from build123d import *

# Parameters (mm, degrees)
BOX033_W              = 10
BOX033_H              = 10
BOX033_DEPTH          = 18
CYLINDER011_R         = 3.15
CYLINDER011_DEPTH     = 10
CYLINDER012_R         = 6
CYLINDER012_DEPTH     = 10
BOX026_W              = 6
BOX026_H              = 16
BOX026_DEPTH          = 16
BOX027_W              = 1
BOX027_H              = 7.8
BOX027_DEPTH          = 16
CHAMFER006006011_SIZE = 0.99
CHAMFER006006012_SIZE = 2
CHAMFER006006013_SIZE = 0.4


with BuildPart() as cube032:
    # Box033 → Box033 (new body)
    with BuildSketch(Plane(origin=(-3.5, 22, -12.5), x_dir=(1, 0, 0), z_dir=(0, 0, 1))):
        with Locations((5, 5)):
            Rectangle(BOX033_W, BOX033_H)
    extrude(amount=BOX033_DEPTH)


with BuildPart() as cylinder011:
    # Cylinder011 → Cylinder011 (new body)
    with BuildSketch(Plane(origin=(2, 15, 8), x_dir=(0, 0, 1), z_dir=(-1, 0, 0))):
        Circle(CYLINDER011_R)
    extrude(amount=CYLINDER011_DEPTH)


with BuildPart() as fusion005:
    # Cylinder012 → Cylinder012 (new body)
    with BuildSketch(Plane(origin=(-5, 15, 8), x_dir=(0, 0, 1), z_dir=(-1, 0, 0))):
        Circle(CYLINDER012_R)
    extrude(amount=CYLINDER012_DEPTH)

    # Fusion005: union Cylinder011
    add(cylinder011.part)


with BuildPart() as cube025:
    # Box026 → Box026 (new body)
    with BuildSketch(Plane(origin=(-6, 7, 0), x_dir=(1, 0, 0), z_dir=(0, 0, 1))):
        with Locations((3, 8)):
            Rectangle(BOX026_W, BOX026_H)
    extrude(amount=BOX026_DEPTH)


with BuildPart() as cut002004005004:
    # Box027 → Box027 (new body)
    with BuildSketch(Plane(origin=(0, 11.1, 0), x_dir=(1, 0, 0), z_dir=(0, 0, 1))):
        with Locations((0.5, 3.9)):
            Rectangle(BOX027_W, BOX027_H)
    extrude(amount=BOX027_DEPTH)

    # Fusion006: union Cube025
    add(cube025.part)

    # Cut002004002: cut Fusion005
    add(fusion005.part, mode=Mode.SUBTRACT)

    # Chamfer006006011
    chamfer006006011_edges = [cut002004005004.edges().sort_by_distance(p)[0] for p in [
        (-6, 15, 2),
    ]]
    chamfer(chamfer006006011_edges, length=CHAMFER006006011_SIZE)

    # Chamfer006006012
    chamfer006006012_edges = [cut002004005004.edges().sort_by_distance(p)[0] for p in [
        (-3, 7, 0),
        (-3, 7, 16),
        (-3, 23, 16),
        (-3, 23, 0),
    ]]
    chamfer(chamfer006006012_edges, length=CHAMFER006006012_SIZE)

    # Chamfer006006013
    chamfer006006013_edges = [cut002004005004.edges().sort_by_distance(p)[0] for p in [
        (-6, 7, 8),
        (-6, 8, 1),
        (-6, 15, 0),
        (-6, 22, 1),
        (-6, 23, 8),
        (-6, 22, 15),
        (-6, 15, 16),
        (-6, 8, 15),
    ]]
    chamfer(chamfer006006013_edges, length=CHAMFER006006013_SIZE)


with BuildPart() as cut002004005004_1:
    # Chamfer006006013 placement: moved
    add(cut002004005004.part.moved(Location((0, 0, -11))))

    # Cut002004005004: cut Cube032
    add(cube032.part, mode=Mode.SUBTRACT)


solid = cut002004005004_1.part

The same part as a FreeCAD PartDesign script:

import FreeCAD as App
import Part
import Sketcher

V = App.Vector


def edges_at(feature, points):
    """Names of the edges that pass closest to the given points."""
    edges = feature.Shape.Edges
    near = lambda p: min(range(len(edges)), key=lambda i: edges[i].distToShape(Part.Vertex(*p))[0])
    return sorted({f"Edge{near(p) + 1}" for p in points})

doc = App.newDocument("Part")
params = doc.addObject("Spreadsheet::Sheet", "Params")
for row, (alias, value) in enumerate([
    ("sketch1_width", "10 mm"),
    ("pad1_length", "18 mm"),
    ("sketch2_diameter", "6.3 mm"),
    ("pad2_length", "10 mm"),
    ("sketch3_diameter", "12 mm"),
    ("pad3_length", "10 mm"),
    ("sketch4_width", "6 mm"),
    ("sketch4_height", "16 mm"),
    ("pad4_length", "16 mm"),
    ("sketch5_width", "1 mm"),
    ("sketch5_height", "7.8 mm"),
    ("pad5_length", "16 mm"),
    ("chamfer_size", "0.99 mm"),
    ("chamfer2_size", "2 mm"),
    ("chamfer3_size", "0.4 mm"),
], start=1):
    params.set(f"A{row}", alias)
    params.set(f"B{row}", "=" + value)
    params.setAlias(f"B{row}", alias)

body = doc.addObject("PartDesign::Body", "Body")

sketch1 = body.newObject("Sketcher::SketchObject", "Sketch")
sketch1.AttachmentSupport = (doc.getObject("XY_Plane"), [""])
sketch1.MapMode = "FlatFace"
sketch1.AttachmentOffset = App.Placement(V(0, 0, -12.5), App.Rotation())
sketch1.addGeometry([
    Part.LineSegment(V(-3.5, 32, 0), V(-3.5, 22, 0)),
    Part.LineSegment(V(-3.5, 22, 0), V(6.5, 22, 0)),
    Part.LineSegment(V(6.5, 22, 0), V(6.5, 32, 0)),
    Part.LineSegment(V(6.5, 32, 0), V(-3.5, 32, 0)),
], False)
sketch1.addConstraint([
    Sketcher.Constraint("Coincident", 0, 2, 1, 1),
    Sketcher.Constraint("Coincident", 1, 2, 2, 1),
    Sketcher.Constraint("Coincident", 2, 2, 3, 1),
    Sketcher.Constraint("Coincident", 3, 2, 0, 1),
    Sketcher.Constraint("Vertical", 0),
    Sketcher.Constraint("Horizontal", 1),
    Sketcher.Constraint("Vertical", 2),
    Sketcher.Constraint("Horizontal", 3),
    Sketcher.Constraint("Equal", 3, 0),
    Sketcher.Constraint("DistanceX", 1, 1, 1, 2, 10.0),
    Sketcher.Constraint("DistanceY", -1, 1, 0, 2, 22.0),
    Sketcher.Constraint("DistanceX", 0, 2, -1, 1, 3.5),
])
sketch1.setExpression("Constraints[9]", "Params.sketch1_width")
pad1 = body.newObject("PartDesign::Pad", "Pad")
pad1.Profile = sketch1
pad1.setExpression("Length", "Params.pad1_length")
body2 = doc.addObject("PartDesign::Body", "Body001")

sketch2 = body2.newObject("Sketcher::SketchObject", "Sketch001")
sketch2.AttachmentSupport = (doc.getObject("YZ_Plane001"), [""])
sketch2.MapMode = "FlatFace"
sketch2.AttachmentOffset = App.Placement(V(0, 0, 2), App.Rotation())
sketch2.addGeometry(Part.Circle(V(15, 8, 0), V(0, 0, 1), 3.15), False)
sketch2.addConstraint([
    Sketcher.Constraint("Diameter", 0, 6.3),
    Sketcher.Constraint("DistanceX", -1, 1, 0, 3, 15.0),
    Sketcher.Constraint("DistanceY", -1, 1, 0, 3, 8.0),
])
sketch2.setExpression("Constraints[0]", "Params.sketch2_diameter")
pad2 = body2.newObject("PartDesign::Pad", "Pad001")
pad2.Profile = sketch2
pad2.setExpression("Length", "Params.pad2_length")
pad2.Reversed = True
body3 = doc.addObject("PartDesign::Body", "Body002")

sketch3 = body3.newObject("Sketcher::SketchObject", "Sketch002")
sketch3.AttachmentSupport = (doc.getObject("YZ_Plane002"), [""])
sketch3.MapMode = "FlatFace"
sketch3.AttachmentOffset = App.Placement(V(0, 0, -5), App.Rotation())
sketch3.addGeometry(Part.Circle(V(15, 8, 0), V(0, 0, 1), 6), False)
sketch3.addConstraint([
    Sketcher.Constraint("Diameter", 0, 12.0),
    Sketcher.Constraint("DistanceX", -1, 1, 0, 3, 15.0),
    Sketcher.Constraint("DistanceY", -1, 1, 0, 3, 8.0),
])
sketch3.setExpression("Constraints[0]", "Params.sketch3_diameter")
pad3 = body3.newObject("PartDesign::Pad", "Pad002")
pad3.Profile = sketch3
pad3.setExpression("Length", "Params.pad3_length")
pad3.Reversed = True
doc.recompute()

boolean = body3.newObject("PartDesign::Boolean", "Boolean")
boolean.Type = "Fuse"
boolean.addObjects([body2])
body4 = doc.addObject("PartDesign::Body", "Body003")

sketch4 = body4.newObject("Sketcher::SketchObject", "Sketch003")
sketch4.AttachmentSupport = (doc.getObject("XY_Plane003"), [""])
sketch4.MapMode = "FlatFace"
sketch4.addGeometry([
    Part.LineSegment(V(-6, 23, 0), V(-6, 7, 0)),
    Part.LineSegment(V(-6, 7, 0), V(0, 7, 0)),
    Part.LineSegment(V(0, 7, 0), V(0, 23, 0)),
    Part.LineSegment(V(0, 23, 0), V(-6, 23, 0)),
], False)
sketch4.addConstraint([
    Sketcher.Constraint("Coincident", 0, 2, 1, 1),
    Sketcher.Constraint("Coincident", 1, 2, 2, 1),
    Sketcher.Constraint("Coincident", 2, 2, 3, 1),
    Sketcher.Constraint("Coincident", 3, 2, 0, 1),
    Sketcher.Constraint("Vertical", 0),
    Sketcher.Constraint("Horizontal", 1),
    Sketcher.Constraint("Vertical", 2),
    Sketcher.Constraint("Horizontal", 3),
    Sketcher.Constraint("PointOnObject", 1, 2, -2),
    Sketcher.Constraint("DistanceX", 1, 1, 1, 2, 6.0),
    Sketcher.Constraint("DistanceY", 0, 2, 0, 1, 16.0),
    Sketcher.Constraint("DistanceY", -1, 1, 0, 2, 7.0),
])
sketch4.setExpression("Constraints[9]", "Params.sketch4_width")
sketch4.setExpression("Constraints[10]", "Params.sketch4_height")
pad4 = body4.newObject("PartDesign::Pad", "Pad003")
pad4.Profile = sketch4
pad4.setExpression("Length", "Params.pad4_length")
body5 = doc.addObject("PartDesign::Body", "Body004")

sketch5 = body5.newObject("Sketcher::SketchObject", "Sketch004")
sketch5.AttachmentSupport = (doc.getObject("XY_Plane004"), [""])
sketch5.MapMode = "FlatFace"
sketch5.addGeometry([
    Part.LineSegment(V(0, 18.9, 0), V(0, 11.1, 0)),
    Part.LineSegment(V(0, 11.1, 0), V(1, 11.1, 0)),
    Part.LineSegment(V(1, 11.1, 0), V(1, 18.9, 0)),
    Part.LineSegment(V(1, 18.9, 0), V(0, 18.9, 0)),
], False)
sketch5.addConstraint([
    Sketcher.Constraint("Coincident", 0, 2, 1, 1),
    Sketcher.Constraint("Coincident", 1, 2, 2, 1),
    Sketcher.Constraint("Coincident", 2, 2, 3, 1),
    Sketcher.Constraint("Coincident", 3, 2, 0, 1),
    Sketcher.Constraint("Vertical", 0),
    Sketcher.Constraint("Horizontal", 1),
    Sketcher.Constraint("Vertical", 2),
    Sketcher.Constraint("Horizontal", 3),
    Sketcher.Constraint("PointOnObject", 0, 2, -2),
    Sketcher.Constraint("DistanceX", 1, 1, 1, 2, 1.0),
    Sketcher.Constraint("DistanceY", 0, 2, 0, 1, 7.8),
    Sketcher.Constraint("DistanceY", -1, 1, 0, 2, 11.1),
])
sketch5.setExpression("Constraints[9]", "Params.sketch5_width")
sketch5.setExpression("Constraints[10]", "Params.sketch5_height")
pad5 = body5.newObject("PartDesign::Pad", "Pad004")
pad5.Profile = sketch5
pad5.setExpression("Length", "Params.pad5_length")
doc.recompute()

boolean2 = body5.newObject("PartDesign::Boolean", "Boolean001")
boolean2.Type = "Fuse"
boolean2.addObjects([body4])
doc.recompute()

boolean3 = body5.newObject("PartDesign::Boolean", "Boolean002")
boolean3.Type = "Cut"
boolean3.addObjects([body3])
doc.recompute()

chamfer = body5.newObject("PartDesign::Chamfer", "Chamfer")
chamfer.Base = (boolean3, edges_at(boolean3, [(-6, 15, 2)]))
chamfer.setExpression("Size", "Params.chamfer_size")
doc.recompute()

chamfer2 = body5.newObject("PartDesign::Chamfer", "Chamfer001")
chamfer2.Base = (chamfer, edges_at(chamfer, [
    (-3, 7, 0),
    (-3, 7, 16),
    (-3, 23, 16),
    (-3, 23, 0),
]))
chamfer2.setExpression("Size", "Params.chamfer2_size")
doc.recompute()

chamfer3 = body5.newObject("PartDesign::Chamfer", "Chamfer002")
chamfer3.Base = (chamfer2, edges_at(chamfer2, [
    (-6, 7, 8),
    (-6, 8, 1),
    (-6, 15, 0),
    (-6, 22, 1),
    (-6, 23, 8),
    (-6, 22, 15),
    (-6, 15, 16),
    (-6, 8, 15),
]))
chamfer3.setExpression("Size", "Params.chamfer3_size")
body6 = doc.addObject("PartDesign::Body", "Body005")
doc.recompute()

body5.Placement = App.Placement(V(0, 0, -11), App.Rotation(V(0, 0, 1), 0))
boolean4 = body6.newObject("PartDesign::Boolean", "Boolean003")
boolean4.Type = "Fuse"
boolean4.addObjects([body5])
doc.recompute()

boolean5 = body6.newObject("PartDesign::Boolean", "Boolean004")
boolean5.Type = "Cut"
boolean5.addObjects([body])

doc.recompute()
